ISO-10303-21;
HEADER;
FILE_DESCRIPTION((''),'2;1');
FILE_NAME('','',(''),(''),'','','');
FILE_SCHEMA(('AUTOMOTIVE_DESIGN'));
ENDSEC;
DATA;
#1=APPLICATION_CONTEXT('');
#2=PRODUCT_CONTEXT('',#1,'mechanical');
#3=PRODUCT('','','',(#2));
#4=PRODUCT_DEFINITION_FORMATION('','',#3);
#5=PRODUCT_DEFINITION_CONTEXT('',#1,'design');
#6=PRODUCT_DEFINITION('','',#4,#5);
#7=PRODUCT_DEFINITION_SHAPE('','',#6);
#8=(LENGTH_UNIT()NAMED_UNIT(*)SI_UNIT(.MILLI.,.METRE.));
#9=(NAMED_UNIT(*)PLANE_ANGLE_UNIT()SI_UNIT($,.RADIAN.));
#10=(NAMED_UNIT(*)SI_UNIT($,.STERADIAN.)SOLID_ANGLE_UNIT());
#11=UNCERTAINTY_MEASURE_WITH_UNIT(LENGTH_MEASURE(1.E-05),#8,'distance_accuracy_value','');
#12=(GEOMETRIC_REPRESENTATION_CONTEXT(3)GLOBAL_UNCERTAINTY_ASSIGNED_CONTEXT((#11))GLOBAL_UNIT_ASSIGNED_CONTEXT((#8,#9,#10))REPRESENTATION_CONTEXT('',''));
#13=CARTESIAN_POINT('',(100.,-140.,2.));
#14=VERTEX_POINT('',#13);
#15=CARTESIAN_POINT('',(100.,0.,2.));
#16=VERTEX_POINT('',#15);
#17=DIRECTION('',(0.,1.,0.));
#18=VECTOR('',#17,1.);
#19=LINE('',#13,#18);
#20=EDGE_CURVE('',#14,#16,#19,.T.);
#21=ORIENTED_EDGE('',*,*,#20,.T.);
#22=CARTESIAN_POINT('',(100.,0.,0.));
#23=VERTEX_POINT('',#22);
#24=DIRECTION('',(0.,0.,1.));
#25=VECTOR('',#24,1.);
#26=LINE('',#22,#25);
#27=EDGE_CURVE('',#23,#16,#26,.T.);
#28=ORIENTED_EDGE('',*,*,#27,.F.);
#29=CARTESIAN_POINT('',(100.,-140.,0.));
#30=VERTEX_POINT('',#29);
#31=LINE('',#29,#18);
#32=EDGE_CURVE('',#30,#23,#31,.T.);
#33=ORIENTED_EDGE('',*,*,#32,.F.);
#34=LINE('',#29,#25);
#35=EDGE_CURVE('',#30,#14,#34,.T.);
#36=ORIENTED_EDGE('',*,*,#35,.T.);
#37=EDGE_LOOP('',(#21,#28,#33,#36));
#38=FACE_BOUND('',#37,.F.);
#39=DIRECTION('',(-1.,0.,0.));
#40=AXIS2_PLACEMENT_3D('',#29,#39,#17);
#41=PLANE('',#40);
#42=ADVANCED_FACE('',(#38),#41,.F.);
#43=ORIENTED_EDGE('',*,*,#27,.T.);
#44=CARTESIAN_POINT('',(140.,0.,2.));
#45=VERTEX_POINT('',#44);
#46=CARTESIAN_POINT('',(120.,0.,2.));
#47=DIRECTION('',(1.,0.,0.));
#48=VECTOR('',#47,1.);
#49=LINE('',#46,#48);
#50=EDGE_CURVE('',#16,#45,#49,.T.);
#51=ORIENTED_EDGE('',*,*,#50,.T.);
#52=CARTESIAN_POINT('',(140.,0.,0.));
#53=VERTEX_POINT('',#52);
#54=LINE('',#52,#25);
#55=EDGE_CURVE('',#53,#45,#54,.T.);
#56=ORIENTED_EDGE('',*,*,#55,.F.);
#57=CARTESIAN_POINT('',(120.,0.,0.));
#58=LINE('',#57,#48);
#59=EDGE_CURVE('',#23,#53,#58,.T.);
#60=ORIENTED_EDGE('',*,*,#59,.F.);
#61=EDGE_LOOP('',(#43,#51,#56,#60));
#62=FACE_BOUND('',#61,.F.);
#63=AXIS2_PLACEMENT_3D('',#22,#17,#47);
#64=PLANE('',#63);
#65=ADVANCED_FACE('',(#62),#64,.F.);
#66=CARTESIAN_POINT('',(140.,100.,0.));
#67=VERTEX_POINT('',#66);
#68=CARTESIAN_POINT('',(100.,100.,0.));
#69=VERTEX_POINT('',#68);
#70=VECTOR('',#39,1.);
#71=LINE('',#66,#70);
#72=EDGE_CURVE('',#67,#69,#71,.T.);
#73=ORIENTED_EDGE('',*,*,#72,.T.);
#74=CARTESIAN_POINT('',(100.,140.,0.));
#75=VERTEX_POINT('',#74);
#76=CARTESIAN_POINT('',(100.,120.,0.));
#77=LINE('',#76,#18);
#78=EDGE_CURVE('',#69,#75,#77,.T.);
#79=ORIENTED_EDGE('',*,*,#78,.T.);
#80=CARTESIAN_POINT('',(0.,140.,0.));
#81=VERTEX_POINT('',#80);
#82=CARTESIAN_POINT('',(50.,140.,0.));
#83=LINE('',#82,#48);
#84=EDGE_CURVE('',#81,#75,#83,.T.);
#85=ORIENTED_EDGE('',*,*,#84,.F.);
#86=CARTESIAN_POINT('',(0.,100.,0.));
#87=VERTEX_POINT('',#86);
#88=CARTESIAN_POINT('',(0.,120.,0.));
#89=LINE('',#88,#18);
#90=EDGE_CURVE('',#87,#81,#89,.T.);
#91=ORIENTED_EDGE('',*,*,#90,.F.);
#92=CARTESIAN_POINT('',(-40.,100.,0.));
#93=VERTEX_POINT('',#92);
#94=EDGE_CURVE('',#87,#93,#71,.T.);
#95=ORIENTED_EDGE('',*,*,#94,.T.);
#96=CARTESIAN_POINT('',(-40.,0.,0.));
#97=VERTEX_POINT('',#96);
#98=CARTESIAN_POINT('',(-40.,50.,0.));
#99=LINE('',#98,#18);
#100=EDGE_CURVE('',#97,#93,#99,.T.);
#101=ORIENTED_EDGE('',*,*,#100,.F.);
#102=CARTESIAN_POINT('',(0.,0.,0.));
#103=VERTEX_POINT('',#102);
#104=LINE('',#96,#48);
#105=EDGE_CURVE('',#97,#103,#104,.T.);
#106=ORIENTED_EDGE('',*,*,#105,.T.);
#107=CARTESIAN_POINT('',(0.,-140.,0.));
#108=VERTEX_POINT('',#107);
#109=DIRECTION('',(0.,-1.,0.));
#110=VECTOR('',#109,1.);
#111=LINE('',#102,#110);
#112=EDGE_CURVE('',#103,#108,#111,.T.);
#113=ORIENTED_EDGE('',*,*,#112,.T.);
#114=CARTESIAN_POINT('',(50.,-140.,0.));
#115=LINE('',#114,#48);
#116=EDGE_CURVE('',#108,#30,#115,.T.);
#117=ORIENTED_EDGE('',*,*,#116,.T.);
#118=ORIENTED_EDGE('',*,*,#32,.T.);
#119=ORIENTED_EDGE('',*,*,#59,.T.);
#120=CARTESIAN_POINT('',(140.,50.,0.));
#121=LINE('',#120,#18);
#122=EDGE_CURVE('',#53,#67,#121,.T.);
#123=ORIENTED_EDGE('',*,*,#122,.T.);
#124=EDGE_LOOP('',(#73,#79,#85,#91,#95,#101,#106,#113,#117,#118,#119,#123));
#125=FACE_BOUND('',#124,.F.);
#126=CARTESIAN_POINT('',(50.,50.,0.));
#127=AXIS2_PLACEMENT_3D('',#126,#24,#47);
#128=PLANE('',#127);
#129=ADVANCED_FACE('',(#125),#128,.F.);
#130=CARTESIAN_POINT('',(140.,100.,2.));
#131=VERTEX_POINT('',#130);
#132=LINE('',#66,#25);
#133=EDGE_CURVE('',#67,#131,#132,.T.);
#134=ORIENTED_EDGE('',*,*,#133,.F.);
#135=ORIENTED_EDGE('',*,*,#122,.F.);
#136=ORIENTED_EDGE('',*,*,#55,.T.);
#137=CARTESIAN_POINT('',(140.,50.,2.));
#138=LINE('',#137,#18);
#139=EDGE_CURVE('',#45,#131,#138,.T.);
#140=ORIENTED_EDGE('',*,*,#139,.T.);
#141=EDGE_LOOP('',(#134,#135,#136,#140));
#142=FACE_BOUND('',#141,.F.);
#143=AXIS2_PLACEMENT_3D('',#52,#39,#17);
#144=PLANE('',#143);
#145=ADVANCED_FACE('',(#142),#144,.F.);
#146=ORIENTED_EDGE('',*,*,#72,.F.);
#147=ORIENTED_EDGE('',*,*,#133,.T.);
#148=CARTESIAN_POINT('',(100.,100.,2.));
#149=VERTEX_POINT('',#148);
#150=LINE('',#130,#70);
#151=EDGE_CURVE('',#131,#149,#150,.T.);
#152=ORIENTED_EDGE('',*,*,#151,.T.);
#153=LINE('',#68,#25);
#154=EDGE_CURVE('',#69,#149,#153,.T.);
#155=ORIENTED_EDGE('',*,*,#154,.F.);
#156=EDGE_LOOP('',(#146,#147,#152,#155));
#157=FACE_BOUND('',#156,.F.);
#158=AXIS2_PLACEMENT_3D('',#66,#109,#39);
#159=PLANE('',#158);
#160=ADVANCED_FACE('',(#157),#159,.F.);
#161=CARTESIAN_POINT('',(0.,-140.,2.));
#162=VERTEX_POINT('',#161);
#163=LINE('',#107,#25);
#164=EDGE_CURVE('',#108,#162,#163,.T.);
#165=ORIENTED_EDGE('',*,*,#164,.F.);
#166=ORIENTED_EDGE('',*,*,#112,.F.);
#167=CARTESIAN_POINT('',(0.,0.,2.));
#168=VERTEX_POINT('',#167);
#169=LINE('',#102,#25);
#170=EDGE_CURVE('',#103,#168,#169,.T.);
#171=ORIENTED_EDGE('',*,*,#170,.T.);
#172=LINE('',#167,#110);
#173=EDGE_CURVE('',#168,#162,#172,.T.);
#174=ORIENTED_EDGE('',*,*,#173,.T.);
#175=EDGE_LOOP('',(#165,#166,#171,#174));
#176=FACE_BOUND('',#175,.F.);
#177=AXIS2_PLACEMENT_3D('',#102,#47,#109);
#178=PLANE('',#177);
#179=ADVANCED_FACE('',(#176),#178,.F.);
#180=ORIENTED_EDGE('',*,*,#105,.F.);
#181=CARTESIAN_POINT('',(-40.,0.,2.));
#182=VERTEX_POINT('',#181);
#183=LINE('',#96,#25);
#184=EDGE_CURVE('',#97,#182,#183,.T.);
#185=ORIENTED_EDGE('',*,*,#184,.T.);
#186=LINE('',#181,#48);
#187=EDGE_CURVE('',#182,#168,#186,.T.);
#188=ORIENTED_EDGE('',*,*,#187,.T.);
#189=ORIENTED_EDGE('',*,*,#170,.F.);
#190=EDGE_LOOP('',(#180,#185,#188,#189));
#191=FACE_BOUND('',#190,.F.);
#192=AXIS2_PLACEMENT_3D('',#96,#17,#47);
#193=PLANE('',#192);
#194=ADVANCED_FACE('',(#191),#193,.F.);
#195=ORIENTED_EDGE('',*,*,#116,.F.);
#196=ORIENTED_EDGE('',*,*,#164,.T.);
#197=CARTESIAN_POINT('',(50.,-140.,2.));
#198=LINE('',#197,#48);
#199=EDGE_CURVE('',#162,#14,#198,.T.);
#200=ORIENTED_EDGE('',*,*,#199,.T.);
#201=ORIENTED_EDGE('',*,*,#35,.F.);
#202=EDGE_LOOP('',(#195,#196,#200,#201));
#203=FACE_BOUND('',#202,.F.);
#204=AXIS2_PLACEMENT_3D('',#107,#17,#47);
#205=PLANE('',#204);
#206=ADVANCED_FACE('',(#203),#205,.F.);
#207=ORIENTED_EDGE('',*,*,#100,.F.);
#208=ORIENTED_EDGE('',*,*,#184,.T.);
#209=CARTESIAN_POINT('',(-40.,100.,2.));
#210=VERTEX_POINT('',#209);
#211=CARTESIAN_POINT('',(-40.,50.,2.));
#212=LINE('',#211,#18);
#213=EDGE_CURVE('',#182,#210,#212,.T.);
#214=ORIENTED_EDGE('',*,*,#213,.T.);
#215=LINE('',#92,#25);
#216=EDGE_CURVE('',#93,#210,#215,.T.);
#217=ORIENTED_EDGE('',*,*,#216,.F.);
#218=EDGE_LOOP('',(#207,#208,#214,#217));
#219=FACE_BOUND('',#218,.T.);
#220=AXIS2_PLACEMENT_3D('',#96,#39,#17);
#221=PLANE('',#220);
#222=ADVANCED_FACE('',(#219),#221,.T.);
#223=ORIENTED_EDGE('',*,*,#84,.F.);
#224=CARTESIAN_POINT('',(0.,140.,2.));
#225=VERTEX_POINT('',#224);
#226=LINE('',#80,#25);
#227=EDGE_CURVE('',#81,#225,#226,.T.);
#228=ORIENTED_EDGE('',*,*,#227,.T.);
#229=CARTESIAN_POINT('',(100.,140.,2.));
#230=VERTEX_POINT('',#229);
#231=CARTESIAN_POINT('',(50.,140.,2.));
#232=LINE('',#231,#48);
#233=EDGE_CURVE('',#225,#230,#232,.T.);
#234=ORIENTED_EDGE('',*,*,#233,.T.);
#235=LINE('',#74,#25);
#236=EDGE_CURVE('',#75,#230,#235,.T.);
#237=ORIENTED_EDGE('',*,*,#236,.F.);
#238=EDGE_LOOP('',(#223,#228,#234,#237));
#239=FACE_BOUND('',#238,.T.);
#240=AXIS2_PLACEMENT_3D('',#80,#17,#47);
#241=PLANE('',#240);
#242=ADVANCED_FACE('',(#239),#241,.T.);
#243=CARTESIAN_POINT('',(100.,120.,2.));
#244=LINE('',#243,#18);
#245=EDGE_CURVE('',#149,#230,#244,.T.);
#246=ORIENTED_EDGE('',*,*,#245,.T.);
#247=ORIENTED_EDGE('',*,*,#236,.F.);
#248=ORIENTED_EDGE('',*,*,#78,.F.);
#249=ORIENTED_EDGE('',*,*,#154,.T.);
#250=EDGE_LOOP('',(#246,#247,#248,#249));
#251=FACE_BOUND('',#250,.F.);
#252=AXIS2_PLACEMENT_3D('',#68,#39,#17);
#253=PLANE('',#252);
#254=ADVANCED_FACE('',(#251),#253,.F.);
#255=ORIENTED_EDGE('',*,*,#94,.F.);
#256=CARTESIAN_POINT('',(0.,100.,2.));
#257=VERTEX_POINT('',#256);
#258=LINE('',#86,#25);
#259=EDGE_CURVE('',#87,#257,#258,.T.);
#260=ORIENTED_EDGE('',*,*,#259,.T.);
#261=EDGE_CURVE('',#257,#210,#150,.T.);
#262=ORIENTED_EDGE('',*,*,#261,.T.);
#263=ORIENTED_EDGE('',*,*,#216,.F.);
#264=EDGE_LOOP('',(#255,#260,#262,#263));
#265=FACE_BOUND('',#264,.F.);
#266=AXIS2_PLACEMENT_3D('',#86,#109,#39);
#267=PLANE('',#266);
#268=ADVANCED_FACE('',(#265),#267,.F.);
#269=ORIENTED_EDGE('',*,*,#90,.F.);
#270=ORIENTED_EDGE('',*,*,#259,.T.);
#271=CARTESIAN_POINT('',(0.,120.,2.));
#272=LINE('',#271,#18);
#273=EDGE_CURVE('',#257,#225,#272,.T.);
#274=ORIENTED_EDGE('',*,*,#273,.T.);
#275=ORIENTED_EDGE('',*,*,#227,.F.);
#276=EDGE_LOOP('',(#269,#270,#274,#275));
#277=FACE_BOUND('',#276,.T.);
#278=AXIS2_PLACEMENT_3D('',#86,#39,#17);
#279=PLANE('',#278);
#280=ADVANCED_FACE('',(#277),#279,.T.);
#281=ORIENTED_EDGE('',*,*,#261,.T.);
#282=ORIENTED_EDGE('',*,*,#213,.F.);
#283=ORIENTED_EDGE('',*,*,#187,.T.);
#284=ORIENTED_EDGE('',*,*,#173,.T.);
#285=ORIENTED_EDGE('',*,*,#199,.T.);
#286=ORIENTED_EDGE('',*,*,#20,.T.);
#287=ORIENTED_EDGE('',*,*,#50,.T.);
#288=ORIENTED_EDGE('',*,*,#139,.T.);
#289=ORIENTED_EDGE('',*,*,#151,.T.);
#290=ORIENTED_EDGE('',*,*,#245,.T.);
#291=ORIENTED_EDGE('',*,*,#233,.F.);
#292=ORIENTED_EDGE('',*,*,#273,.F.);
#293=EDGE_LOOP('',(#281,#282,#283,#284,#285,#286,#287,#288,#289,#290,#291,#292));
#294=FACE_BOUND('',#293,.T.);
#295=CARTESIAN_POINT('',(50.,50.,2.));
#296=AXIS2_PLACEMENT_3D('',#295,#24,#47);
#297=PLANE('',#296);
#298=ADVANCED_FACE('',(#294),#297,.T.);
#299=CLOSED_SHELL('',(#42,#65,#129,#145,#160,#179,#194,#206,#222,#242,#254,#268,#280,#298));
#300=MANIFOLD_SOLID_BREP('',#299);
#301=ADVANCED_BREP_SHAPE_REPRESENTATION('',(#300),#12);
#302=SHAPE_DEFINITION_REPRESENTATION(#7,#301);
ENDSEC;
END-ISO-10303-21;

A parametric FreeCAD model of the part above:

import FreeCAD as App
import Part
import Sketcher

V = App.Vector
Q = App.Units.Quantity

doc = App.newDocument("Part")
body = doc.addObject("PartDesign::Body", "Body")

# Sketch on XY plane
sketch1 = body.newObject("Sketcher::SketchObject", "Sketch")
sketch1.AttachmentSupport = (doc.getObject("XY_Plane"), [""])
sketch1.MapMode = "FlatFace"
sketch1.addGeometry([
    Part.LineSegment(V(-40, 100, 0), V(-40, 0, 0)),  # 0
    Part.LineSegment(V(-40, 0, 0), V(0, 0, 0)),  # 1
    Part.LineSegment(V(0, 0, 0), V(0, -140, 0)),  # 2
    Part.LineSegment(V(0, -140, 0), V(100, -140, 0)),  # 3
    Part.LineSegment(V(100, -140, 0), V(100, 0, 0)),  # 4
    Part.LineSegment(V(100, 0, 0), V(140, 0, 0)),  # 5
    Part.LineSegment(V(140, 0, 0), V(140, 100, 0)),  # 6
    Part.LineSegment(V(140, 100, 0), V(100, 100, 0)),  # 7
    Part.LineSegment(V(100, 100, 0), V(100, 140, 0)),  # 8
    Part.LineSegment(V(100, 140, 0), V(0, 140, 0)),  # 9
    Part.LineSegment(V(0, 140, 0), V(0, 100, 0)),  # 10
    Part.LineSegment(V(0, 100, 0), V(-40, 100, 0)),  # 11
], False)
sketch1.addConstraint([
    Sketcher.Constraint("Coincident", 0, 2, 1, 1),
    Sketcher.Constraint("Coincident", 1, 2, 2, 1),
    Sketcher.Constraint("Coincident", 2, 2, 3, 1),
    Sketcher.Constraint("Coincident", 3, 2, 4, 1),
    Sketcher.Constraint("Coincident", 4, 2, 5, 1),
    Sketcher.Constraint("Coincident", 5, 2, 6, 1),
    Sketcher.Constraint("Coincident", 6, 2, 7, 1),
    Sketcher.Constraint("Coincident", 7, 2, 8, 1),
    Sketcher.Constraint("Coincident", 8, 2, 9, 1),
    Sketcher.Constraint("Coincident", 9, 2, 10, 1),
    Sketcher.Constraint("Coincident", 10, 2, 11, 1),
    Sketcher.Constraint("Coincident", 11, 2, 0, 1),
    Sketcher.Constraint("Vertical", 0),
    Sketcher.Constraint("Horizontal", 1),
    Sketcher.Constraint("Vertical", 2),
    Sketcher.Constraint("Horizontal", 3),
    Sketcher.Constraint("Vertical", 4),
    Sketcher.Constraint("Horizontal", 5),
    Sketcher.Constraint("Vertical", 6),
    Sketcher.Constraint("Horizontal", 7),
    Sketcher.Constraint("Vertical", 8),
    Sketcher.Constraint("Horizontal", 9),
    Sketcher.Constraint("Vertical", 10),
    Sketcher.Constraint("Horizontal", 11),
    Sketcher.Constraint("Coincident", 1, 2, -1, 1),
    Sketcher.Constraint("Symmetric", 2, 2, 9, 2, -1, 1),
    Sketcher.Constraint("PointOnObject", 4, 2, -1),
    Sketcher.Constraint("Horizontal", 7, 2, 10, 2),
    Sketcher.Constraint("Vertical", 4, 2, 7, 2),
    Sketcher.Constraint("Equal", 1, 5),
    Sketcher.Constraint("Equal", 9, 0),
    Sketcher.Constraint("Equal", 11, 8),
    Sketcher.Constraint("DistanceX", 1, 1, 1, 2, Q("40 mm")),
    Sketcher.Constraint("DistanceX", 3, 1, 3, 2, Q("100 mm")),
])
pad1 = body.newObject("PartDesign::Pad", "Pad")
pad1.Profile = sketch1
pad1.Length = 2

doc.recompute()
